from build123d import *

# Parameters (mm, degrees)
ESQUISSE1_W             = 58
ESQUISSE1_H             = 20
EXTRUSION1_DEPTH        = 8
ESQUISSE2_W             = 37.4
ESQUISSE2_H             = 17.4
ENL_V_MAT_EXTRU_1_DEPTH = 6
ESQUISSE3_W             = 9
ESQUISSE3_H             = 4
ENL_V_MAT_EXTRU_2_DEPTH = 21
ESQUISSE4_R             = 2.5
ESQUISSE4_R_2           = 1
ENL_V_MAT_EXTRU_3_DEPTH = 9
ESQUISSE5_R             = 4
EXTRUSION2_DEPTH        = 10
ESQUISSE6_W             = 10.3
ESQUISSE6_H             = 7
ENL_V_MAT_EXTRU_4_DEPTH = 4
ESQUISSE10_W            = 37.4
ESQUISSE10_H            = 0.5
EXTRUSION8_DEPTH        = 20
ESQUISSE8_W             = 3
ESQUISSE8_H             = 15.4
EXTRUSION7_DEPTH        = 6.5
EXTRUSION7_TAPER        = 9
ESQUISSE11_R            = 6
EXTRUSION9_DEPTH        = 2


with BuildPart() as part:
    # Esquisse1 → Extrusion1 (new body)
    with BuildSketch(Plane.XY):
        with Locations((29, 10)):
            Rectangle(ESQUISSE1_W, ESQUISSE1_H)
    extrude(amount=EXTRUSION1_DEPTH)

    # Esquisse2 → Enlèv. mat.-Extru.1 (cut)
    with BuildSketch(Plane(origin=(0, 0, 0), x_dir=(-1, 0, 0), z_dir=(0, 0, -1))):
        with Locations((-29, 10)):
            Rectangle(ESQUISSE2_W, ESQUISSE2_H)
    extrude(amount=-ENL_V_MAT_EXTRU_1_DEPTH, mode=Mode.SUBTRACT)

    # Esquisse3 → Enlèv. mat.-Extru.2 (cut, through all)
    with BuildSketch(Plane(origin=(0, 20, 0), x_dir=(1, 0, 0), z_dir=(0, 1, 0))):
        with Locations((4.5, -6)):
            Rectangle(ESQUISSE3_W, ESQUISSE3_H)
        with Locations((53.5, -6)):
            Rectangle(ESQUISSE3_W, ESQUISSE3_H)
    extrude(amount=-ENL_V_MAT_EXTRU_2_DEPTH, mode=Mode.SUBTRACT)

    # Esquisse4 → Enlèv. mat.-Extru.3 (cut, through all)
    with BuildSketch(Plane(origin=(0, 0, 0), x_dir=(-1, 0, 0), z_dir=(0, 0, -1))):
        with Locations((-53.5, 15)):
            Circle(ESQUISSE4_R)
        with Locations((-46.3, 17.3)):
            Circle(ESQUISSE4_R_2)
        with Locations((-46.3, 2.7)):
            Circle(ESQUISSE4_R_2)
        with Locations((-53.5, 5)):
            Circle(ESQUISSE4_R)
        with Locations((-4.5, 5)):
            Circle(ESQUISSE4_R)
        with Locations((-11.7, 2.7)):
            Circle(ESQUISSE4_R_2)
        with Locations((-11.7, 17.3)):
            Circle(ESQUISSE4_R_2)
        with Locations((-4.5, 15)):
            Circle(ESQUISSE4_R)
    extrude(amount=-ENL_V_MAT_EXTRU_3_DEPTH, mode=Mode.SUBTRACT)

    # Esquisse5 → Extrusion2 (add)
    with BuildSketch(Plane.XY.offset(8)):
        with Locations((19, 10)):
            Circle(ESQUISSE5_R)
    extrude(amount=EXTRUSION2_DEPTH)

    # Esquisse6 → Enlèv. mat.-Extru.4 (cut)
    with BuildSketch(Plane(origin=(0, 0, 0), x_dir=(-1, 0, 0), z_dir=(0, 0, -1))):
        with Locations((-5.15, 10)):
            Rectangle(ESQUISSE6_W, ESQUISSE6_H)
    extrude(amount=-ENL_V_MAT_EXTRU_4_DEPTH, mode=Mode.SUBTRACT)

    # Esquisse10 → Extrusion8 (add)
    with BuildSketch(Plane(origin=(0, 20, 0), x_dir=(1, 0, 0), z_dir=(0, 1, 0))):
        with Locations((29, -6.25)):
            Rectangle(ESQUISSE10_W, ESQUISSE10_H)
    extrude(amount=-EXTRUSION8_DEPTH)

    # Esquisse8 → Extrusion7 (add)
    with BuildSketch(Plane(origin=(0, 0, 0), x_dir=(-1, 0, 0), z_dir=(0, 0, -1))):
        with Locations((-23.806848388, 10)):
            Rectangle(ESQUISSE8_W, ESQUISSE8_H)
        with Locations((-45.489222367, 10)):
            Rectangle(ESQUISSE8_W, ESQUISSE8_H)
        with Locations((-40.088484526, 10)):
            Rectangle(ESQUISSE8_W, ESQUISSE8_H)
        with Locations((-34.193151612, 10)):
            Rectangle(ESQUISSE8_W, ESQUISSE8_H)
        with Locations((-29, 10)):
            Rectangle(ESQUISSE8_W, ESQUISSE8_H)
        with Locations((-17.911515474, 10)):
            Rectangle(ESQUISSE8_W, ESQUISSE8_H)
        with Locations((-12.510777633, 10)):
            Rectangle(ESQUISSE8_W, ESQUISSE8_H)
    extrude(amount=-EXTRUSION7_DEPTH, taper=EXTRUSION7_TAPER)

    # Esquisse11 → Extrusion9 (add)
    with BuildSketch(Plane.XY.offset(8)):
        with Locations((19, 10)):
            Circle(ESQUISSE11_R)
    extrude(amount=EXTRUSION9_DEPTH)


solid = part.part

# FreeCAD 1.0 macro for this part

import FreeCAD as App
import Part
import Sketcher


def add_polygon(sketch, points):
    """Adds a closed chain of lines whose ends are joined by coincident constraints."""
    first, n = sketch.GeometryCount, len(points)
    for a, b in zip(points, points[1:] + points[:1]):
        sketch.addGeometry(Part.LineSegment(App.Vector(*a, 0), App.Vector(*b, 0)), False)
    for i in range(n):
        sketch.addConstraint(Sketcher.Constraint("Coincident", first + i, 2, first + (i + 1) % n, 1))

doc = App.newDocument("Part")
body = doc.addObject("PartDesign::Body", "Body")

# Sketch on XY plane
sketch1 = body.newObject("Sketcher::SketchObject", "Sketch")
sketch1.AttachmentSupport = (doc.getObject("XY_Plane"), [""])
sketch1.MapMode = "FlatFace"
add_polygon(sketch1, [(0, 20), (0, 0), (58, 0), (58, 20)])  # lines 0-3
sketch1.addConstraint([
    Sketcher.Constraint("Vertical", 0),
    Sketcher.Constraint("Horizontal", 1),
    Sketcher.Constraint("Vertical", 2),
    Sketcher.Constraint("Horizontal", 3),
    Sketcher.Constraint("Coincident", 0, 2, -1, 1),
    Sketcher.Constraint("DistanceX", 1, 1, 1, 2, 58.0),
    Sketcher.Constraint("DistanceY", 0, 2, 0, 1, 20.0),
])
pad1 = body.newObject("PartDesign::Pad", "Pad")
pad1.Profile = sketch1
pad1.Length = 8

# Sketch on XY plane
sketch2 = body.newObject("Sketcher::SketchObject", "Sketch001")
sketch2.AttachmentSupport = (doc.getObject("XY_Plane"), [""])
sketch2.MapMode = "FlatFace"
add_polygon(sketch2, [(48, 19), (48, 1), (10, 1), (10, 19)])  # lines 0-3
sketch2.addConstraint([
    Sketcher.Constraint("Vertical", 0),
    Sketcher.Constraint("Horizontal", 1),
    Sketcher.Constraint("Vertical", 2),
    Sketcher.Constraint("Horizontal", 3),
    Sketcher.Constraint("DistanceX", 1, 2, 1, 1, 37.4),
    Sketcher.Constraint("DistanceY", 0, 2, 0, 1, 17.4),
    Sketcher.Constraint("DistanceX", -1, 1, 0, 2, 47.7),
    Sketcher.Constraint("DistanceY", -1, 1, 0, 2, 1.3),
])
pocket1 = body.newObject("PartDesign::Pocket", "Pocket")
pocket1.Profile = sketch2
pocket1.Length = 6
pocket1.Reversed = True

# Sketch on XZ plane
sketch3 = body.newObject("Sketcher::SketchObject", "Sketch002")
sketch3.AttachmentSupport = (doc.getObject("XZ_Plane"), [""])
sketch3.MapMode = "FlatFace"
sketch3.AttachmentOffset = App.Placement(App.Vector(0, 0, -20), App.Rotation())
add_polygon(sketch3, [(0, 4), (0, 8), (9, 8), (9, 4)])  # lines 0-3
add_polygon(sketch3, [(49, 4), (49, 8), (58, 8), (58, 4)])  # lines 4-7
sketch3.addConstraint([
    Sketcher.Constraint("Vertical", 0),
    Sketcher.Constraint("Horizontal", 1),
    Sketcher.Constraint("Vertical", 2),
    Sketcher.Constraint("Horizontal", 3),
    Sketcher.Constraint("Vertical", 4),
    Sketcher.Constraint("Horizontal", 5),
    Sketcher.Constraint("Vertical", 6),
    Sketcher.Constraint("Horizontal", 7),
    Sketcher.Constraint("PointOnObject", 0, 2, -2),
    Sketcher.Constraint("Horizontal", 1, 2, 4, 2),
    Sketcher.Constraint("Horizontal", 3, 2, 6, 2),
    Sketcher.Constraint("Equal", 3, 5),
    Sketcher.Constraint("DistanceX", 1, 1, 1, 2, 9.0),
    Sketcher.Constraint("DistanceY", 0, 1, 0, 2, 4.0),
    Sketcher.Constraint("DistanceY", -1, 1, 0, 2, 8.0),
    Sketcher.Constraint("DistanceX", -1, 1, 4, 2, 49.0),
])
pocket2 = body.newObject("PartDesign::Pocket", "Pocket001")
pocket2.Profile = sketch3
pocket2.Type = "ThroughAll"
pocket2.Reversed = True

# Sketch on XY plane
sketch4 = body.newObject("Sketcher::SketchObject", "Sketch003")
sketch4.AttachmentSupport = (doc.getObject("XY_Plane"), [""])
sketch4.MapMode = "FlatFace"
sketch4.addGeometry([
    Part.Circle(App.Vector(53.5, 15, 0), App.Vector(0, 0, 1), 2.5),  # 0
    Part.Circle(App.Vector(46.3, 17.3, 0), App.Vector(0, 0, 1), 1),  # 1
    Part.Circle(App.Vector(46.3, 2.7, 0), App.Vector(0, 0, 1), 1),  # 2
    Part.Circle(App.Vector(53.5, 5, 0), App.Vector(0, 0, 1), 2.5),  # 3
    Part.Circle(App.Vector(4.5, 5, 0), App.Vector(0, 0, 1), 2.5),  # 4
    Part.Circle(App.Vector(11.7, 2.7, 0), App.Vector(0, 0, 1), 1),  # 5
    Part.Circle(App.Vector(11.7, 17.3, 0), App.Vector(0, 0, 1), 1),  # 6
    Part.Circle(App.Vector(4.5, 15, 0), App.Vector(0, 0, 1), 2.5),  # 7
], False)
sketch4.addConstraint([
    Sketcher.Constraint("Equal", 1, 2),
    Sketcher.Constraint("Equal", 0, 3),
    Sketcher.Constraint("Equal", 3, 4),
    Sketcher.Constraint("Equal", 2, 5),
    Sketcher.Constraint("Equal", 5, 6),
    Sketcher.Constraint("Equal", 4, 7),
    Sketcher.Constraint("Horizontal", 3, 3, 4, 3),
    Sketcher.Constraint("Horizontal", 2, 3, 5, 3),
    Sketcher.Constraint("Horizontal", 1, 3, 6, 3),
    Sketcher.Constraint("Horizontal", 0, 3, 7, 3),
    Sketcher.Constraint("Vertical", 1, 3, 2, 3),
    Sketcher.Constraint("Vertical", 0, 3, 3, 3),
    Sketcher.Constraint("Vertical", 5, 3, 6, 3),
    Sketcher.Constraint("Vertical", 4, 3, 7, 3),
    Sketcher.Constraint("Diameter", 0, 5.0),
    Sketcher.Constraint("Diameter", 1, 2.0),
    Sketcher.Constraint("DistanceY", -1, 1, 0, 3, 15.0),
    Sketcher.Constraint("DistanceY", -1, 1, 3, 3, 5.0),
    Sketcher.Constraint("DistanceX", 4, 3, 3, 3, 49.0),
    Sketcher.Constraint("DistanceX", -1, 1, 0, 3, 53.5),
    Sketcher.Constraint("DistanceX", -1, 1, 1, 3, 46.3),
    Sketcher.Constraint("DistanceY", -1, 1, 1, 3, 17.3),
    Sketcher.Constraint("DistanceY", -1, 1, 2, 3, 2.7),
    Sketcher.Constraint("DistanceX", -1, 1, 5, 3, 11.7),
])
pocket3 = body.newObject("PartDesign::Pocket", "Pocket002")
pocket3.Profile = sketch4
pocket3.Type = "ThroughAll"
pocket3.Reversed = True

# Sketch on XY plane
sketch5 = body.newObject("Sketcher::SketchObject", "Sketch004")
sketch5.AttachmentSupport = (doc.getObject("XY_Plane"), [""])
sketch5.MapMode = "FlatFace"
sketch5.AttachmentOffset = App.Placement(App.Vector(0, 0, 8), App.Rotation())
sketch5.addGeometry(Part.Circle(App.Vector(19, 10, 0), App.Vector(0, 0, 1), 4), False)
sketch5.addConstraint([
    Sketcher.Constraint("Diameter", 0, 8.0),
    Sketcher.Constraint("DistanceX", -1, 1, 0, 3, 19.0),
    Sketcher.Constraint("DistanceY", -1, 1, 0, 3, 10.0),
])
pad2 = body.newObject("PartDesign::Pad", "Pad001")
pad2.Profile = sketch5
pad2.Length = 10

# Sketch on XY plane
sketch6 = body.newObject("Sketcher::SketchObject", "Sketch005")
sketch6.AttachmentSupport = (doc.getObject("XY_Plane"), [""])
sketch6.MapMode = "FlatFace"
add_polygon(sketch6, [(10, 14), (10, 6), (0, 6), (0, 14)])  # lines 0-3
sketch6.addConstraint([
    Sketcher.Constraint("Vertical", 0),
    Sketcher.Constraint("Horizontal", 1),
    Sketcher.Constraint("Vertical", 2),
    Sketcher.Constraint("Horizontal", 3),
    Sketcher.Constraint("PointOnObject", 1, 2, -2),
    Sketcher.Constraint("DistanceY", 0, 2, 0, 1, 7.0),
    Sketcher.Constraint("DistanceX", 1, 2, 1, 1, 10.3),
    Sketcher.Constraint("DistanceY", -1, 1, 0, 2, 6.5),
])
pocket4 = body.newObject("PartDesign::Pocket", "Pocket003")
pocket4.Profile = sketch6
pocket4.Length = 4
pocket4.Reversed = True

# Sketch on XZ plane
sketch7 = body.newObject("Sketcher::SketchObject", "Sketch006")
sketch7.AttachmentSupport = (doc.getObject("XZ_Plane"), [""])
sketch7.MapMode = "FlatFace"
sketch7.AttachmentOffset = App.Placement(App.Vector(0, 0, -20), App.Rotation())
add_polygon(sketch7, [(10.3, 6), (10.3, 6.5), (47.7, 6.5), (47.7, 6)])  # lines 0-3
sketch7.addConstraint([
    Sketcher.Constraint("Vertical", 0),
    Sketcher.Constraint("Horizontal", 1),
    Sketcher.Constraint("Vertical", 2),
    Sketcher.Constraint("Horizontal", 3),
    Sketcher.Constraint("DistanceX", 1, 1, 1, 2, 37.4),
    Sketcher.Constraint("DistanceY", 0, 1, 0, 2, 0.5),
    Sketcher.Constraint("DistanceY", -1, 1, 2, 2, 6.0),
    Sketcher.Constraint("DistanceX", -1, 1, 0, 2, 10.3),
])
pad3 = body.newObject("PartDesign::Pad", "Pad002")
pad3.Profile = sketch7
pad3.Length = 20

# Sketch on XY plane
sketch8 = body.newObject("Sketcher::SketchObject", "Sketch007")
sketch8.AttachmentSupport = (doc.getObject("XY_Plane"), [""])
sketch8.MapMode = "FlatFace"
add_polygon(sketch8, [(25.3, 17.7), (25.3, 2.3), (22.3, 2.3), (22.3, 17.7)])  # lines 0-3
add_polygon(sketch8, [(47, 17.7), (47, 2.3), (44, 2.3), (44, 17.7)])  # lines 4-7
add_polygon(sketch8, [(41.6, 17.7), (41.6, 2.3), (38.6, 2.3), (38.6, 17.7)])  # lines 8-11
add_polygon(sketch8, [(35.7, 17.7), (35.7, 2.3), (32.7, 2.3), (32.7, 17.7)])  # lines 12-15
add_polygon(sketch8, [(30.5, 17.7), (30.5, 2.3), (27.5, 2.3), (27.5, 17.7)])  # lines 16-19
add_polygon(sketch8, [(19.4, 17.7), (19.4, 2.3), (16.4, 2.3), (16.4, 17.7)])  # lines 20-23
add_polygon(sketch8, [(14, 17.7), (14, 2.3), (11, 2.3), (11, 17.7)])  # lines 24-27
sketch8.addConstraint([
    Sketcher.Constraint("Vertical", 0),
    Sketcher.Constraint("Horizontal", 1),
    Sketcher.Constraint("Vertical", 2),
    Sketcher.Constraint("Horizontal", 3),
    Sketcher.Constraint("Vertical", 4),
    Sketcher.Constraint("Horizontal", 5),
    Sketcher.Constraint("Vertical", 6),
    Sketcher.Constraint("Horizontal", 7),
    Sketcher.Constraint("Vertical", 8),
    Sketcher.Constraint("Horizontal", 9),
    Sketcher.Constraint("Vertical", 10),
    Sketcher.Constraint("Horizontal", 11),
    Sketcher.Constraint("Vertical", 12),
    Sketcher.Constraint("Horizontal", 13),
    Sketcher.Constraint("Vertical", 14),
    Sketcher.Constraint("Horizontal", 15),
    Sketcher.Constraint("Vertical", 16),
    Sketcher.Constraint("Horizontal", 17),
    Sketcher.Constraint("Vertical", 18),
    Sketcher.Constraint("Horizontal", 19),
    Sketcher.Constraint("Vertical", 20),
    Sketcher.Constraint("Horizontal", 21),
    Sketcher.Constraint("Vertical", 22),
    Sketcher.Constraint("Horizontal", 23),
    Sketcher.Constraint("Vertical", 24),
    Sketcher.Constraint("Horizontal", 25),
    Sketcher.Constraint("Vertical", 26),
    Sketcher.Constraint("Horizontal", 27),
    Sketcher.Constraint("Horizontal", 1, 2, 4, 2),
    Sketcher.Constraint("Horizontal", 3, 2, 6, 2),
    Sketcher.Constraint("Horizontal", 5, 2, 8, 2),
    Sketcher.Constraint("Horizontal", 7, 2, 10, 2),
    Sketcher.Constraint("Horizontal", 9, 2, 12, 2),
    Sketcher.Constraint("Horizontal", 11, 2, 14, 2),
    Sketcher.Constraint("Horizontal", 13, 2, 16, 2),
    Sketcher.Constraint("Horizontal", 15, 2, 18, 2),
    Sketcher.Constraint("Horizontal", 17, 2, 20, 2),
    Sketcher.Constraint("Horizontal", 19, 2, 22, 2),
    Sketcher.Constraint("Horizontal", 21, 2, 24, 2),
    Sketcher.Constraint("Horizontal", 23, 2, 26, 2),
    Sketcher.Constraint("Equal", 3, 5),
    Sketcher.Constraint("Equal", 7, 9),
    Sketcher.Constraint("Equal", 11, 13),
    Sketcher.Constraint("Equal", 15, 17),
    Sketcher.Constraint("Equal", 19, 21),
    Sketcher.Constraint("Equal", 23, 25),
    Sketcher.Constraint("DistanceX", 1, 2, 1, 1, 3.0),
    Sketcher.Constraint("DistanceY", 0, 2, 0, 1, 15.4),
    Sketcher.Constraint("DistanceY", -1, 1, 0, 2, 2.3),
    Sketcher.Constraint("DistanceX", -1, 1, 16, 2, 30.5),
    Sketcher.Constraint("DistanceX", -1, 1, 0, 2, 25.306848),
    Sketcher.Constraint("DistanceX", -1, 1, 12, 2, 35.693152),
    Sketcher.Constraint("DistanceX", 12, 2, 5, 2, 8.296071),
    Sketcher.Constraint("DistanceX", 24, 2, 1, 2, 8.296071),
    Sketcher.Constraint("DistanceX", -1, 1, 8, 2, 41.588485),
    Sketcher.Constraint("DistanceX", -1, 1, 20, 2, 19.411515),
])
pad4 = body.newObject("PartDesign::Pad", "Pad003")
pad4.Profile = sketch8
pad4.Length = 6.5
pad4.TaperAngle = -9

# Sketch on XY plane
sketch9 = body.newObject("Sketcher::SketchObject", "Sketch008")
sketch9.AttachmentSupport = (doc.getObject("XY_Plane"), [""])
sketch9.MapMode = "FlatFace"
sketch9.AttachmentOffset = App.Placement(App.Vector(0, 0, 8), App.Rotation())
sketch9.addGeometry(Part.Circle(App.Vector(19, 10, 0), App.Vector(0, 0, 1), 6), False)
sketch9.addConstraint([
    Sketcher.Constraint("Diameter", 0, 12.0),
    Sketcher.Constraint("DistanceX", -1, 1, 0, 3, 19.0),
    Sketcher.Constraint("DistanceY", -1, 1, 0, 3, 10.0),
])
pad5 = body.newObject("PartDesign::Pad", "Pad004")
pad5.Profile = sketch9
pad5.Length = 2

doc.recompute()
